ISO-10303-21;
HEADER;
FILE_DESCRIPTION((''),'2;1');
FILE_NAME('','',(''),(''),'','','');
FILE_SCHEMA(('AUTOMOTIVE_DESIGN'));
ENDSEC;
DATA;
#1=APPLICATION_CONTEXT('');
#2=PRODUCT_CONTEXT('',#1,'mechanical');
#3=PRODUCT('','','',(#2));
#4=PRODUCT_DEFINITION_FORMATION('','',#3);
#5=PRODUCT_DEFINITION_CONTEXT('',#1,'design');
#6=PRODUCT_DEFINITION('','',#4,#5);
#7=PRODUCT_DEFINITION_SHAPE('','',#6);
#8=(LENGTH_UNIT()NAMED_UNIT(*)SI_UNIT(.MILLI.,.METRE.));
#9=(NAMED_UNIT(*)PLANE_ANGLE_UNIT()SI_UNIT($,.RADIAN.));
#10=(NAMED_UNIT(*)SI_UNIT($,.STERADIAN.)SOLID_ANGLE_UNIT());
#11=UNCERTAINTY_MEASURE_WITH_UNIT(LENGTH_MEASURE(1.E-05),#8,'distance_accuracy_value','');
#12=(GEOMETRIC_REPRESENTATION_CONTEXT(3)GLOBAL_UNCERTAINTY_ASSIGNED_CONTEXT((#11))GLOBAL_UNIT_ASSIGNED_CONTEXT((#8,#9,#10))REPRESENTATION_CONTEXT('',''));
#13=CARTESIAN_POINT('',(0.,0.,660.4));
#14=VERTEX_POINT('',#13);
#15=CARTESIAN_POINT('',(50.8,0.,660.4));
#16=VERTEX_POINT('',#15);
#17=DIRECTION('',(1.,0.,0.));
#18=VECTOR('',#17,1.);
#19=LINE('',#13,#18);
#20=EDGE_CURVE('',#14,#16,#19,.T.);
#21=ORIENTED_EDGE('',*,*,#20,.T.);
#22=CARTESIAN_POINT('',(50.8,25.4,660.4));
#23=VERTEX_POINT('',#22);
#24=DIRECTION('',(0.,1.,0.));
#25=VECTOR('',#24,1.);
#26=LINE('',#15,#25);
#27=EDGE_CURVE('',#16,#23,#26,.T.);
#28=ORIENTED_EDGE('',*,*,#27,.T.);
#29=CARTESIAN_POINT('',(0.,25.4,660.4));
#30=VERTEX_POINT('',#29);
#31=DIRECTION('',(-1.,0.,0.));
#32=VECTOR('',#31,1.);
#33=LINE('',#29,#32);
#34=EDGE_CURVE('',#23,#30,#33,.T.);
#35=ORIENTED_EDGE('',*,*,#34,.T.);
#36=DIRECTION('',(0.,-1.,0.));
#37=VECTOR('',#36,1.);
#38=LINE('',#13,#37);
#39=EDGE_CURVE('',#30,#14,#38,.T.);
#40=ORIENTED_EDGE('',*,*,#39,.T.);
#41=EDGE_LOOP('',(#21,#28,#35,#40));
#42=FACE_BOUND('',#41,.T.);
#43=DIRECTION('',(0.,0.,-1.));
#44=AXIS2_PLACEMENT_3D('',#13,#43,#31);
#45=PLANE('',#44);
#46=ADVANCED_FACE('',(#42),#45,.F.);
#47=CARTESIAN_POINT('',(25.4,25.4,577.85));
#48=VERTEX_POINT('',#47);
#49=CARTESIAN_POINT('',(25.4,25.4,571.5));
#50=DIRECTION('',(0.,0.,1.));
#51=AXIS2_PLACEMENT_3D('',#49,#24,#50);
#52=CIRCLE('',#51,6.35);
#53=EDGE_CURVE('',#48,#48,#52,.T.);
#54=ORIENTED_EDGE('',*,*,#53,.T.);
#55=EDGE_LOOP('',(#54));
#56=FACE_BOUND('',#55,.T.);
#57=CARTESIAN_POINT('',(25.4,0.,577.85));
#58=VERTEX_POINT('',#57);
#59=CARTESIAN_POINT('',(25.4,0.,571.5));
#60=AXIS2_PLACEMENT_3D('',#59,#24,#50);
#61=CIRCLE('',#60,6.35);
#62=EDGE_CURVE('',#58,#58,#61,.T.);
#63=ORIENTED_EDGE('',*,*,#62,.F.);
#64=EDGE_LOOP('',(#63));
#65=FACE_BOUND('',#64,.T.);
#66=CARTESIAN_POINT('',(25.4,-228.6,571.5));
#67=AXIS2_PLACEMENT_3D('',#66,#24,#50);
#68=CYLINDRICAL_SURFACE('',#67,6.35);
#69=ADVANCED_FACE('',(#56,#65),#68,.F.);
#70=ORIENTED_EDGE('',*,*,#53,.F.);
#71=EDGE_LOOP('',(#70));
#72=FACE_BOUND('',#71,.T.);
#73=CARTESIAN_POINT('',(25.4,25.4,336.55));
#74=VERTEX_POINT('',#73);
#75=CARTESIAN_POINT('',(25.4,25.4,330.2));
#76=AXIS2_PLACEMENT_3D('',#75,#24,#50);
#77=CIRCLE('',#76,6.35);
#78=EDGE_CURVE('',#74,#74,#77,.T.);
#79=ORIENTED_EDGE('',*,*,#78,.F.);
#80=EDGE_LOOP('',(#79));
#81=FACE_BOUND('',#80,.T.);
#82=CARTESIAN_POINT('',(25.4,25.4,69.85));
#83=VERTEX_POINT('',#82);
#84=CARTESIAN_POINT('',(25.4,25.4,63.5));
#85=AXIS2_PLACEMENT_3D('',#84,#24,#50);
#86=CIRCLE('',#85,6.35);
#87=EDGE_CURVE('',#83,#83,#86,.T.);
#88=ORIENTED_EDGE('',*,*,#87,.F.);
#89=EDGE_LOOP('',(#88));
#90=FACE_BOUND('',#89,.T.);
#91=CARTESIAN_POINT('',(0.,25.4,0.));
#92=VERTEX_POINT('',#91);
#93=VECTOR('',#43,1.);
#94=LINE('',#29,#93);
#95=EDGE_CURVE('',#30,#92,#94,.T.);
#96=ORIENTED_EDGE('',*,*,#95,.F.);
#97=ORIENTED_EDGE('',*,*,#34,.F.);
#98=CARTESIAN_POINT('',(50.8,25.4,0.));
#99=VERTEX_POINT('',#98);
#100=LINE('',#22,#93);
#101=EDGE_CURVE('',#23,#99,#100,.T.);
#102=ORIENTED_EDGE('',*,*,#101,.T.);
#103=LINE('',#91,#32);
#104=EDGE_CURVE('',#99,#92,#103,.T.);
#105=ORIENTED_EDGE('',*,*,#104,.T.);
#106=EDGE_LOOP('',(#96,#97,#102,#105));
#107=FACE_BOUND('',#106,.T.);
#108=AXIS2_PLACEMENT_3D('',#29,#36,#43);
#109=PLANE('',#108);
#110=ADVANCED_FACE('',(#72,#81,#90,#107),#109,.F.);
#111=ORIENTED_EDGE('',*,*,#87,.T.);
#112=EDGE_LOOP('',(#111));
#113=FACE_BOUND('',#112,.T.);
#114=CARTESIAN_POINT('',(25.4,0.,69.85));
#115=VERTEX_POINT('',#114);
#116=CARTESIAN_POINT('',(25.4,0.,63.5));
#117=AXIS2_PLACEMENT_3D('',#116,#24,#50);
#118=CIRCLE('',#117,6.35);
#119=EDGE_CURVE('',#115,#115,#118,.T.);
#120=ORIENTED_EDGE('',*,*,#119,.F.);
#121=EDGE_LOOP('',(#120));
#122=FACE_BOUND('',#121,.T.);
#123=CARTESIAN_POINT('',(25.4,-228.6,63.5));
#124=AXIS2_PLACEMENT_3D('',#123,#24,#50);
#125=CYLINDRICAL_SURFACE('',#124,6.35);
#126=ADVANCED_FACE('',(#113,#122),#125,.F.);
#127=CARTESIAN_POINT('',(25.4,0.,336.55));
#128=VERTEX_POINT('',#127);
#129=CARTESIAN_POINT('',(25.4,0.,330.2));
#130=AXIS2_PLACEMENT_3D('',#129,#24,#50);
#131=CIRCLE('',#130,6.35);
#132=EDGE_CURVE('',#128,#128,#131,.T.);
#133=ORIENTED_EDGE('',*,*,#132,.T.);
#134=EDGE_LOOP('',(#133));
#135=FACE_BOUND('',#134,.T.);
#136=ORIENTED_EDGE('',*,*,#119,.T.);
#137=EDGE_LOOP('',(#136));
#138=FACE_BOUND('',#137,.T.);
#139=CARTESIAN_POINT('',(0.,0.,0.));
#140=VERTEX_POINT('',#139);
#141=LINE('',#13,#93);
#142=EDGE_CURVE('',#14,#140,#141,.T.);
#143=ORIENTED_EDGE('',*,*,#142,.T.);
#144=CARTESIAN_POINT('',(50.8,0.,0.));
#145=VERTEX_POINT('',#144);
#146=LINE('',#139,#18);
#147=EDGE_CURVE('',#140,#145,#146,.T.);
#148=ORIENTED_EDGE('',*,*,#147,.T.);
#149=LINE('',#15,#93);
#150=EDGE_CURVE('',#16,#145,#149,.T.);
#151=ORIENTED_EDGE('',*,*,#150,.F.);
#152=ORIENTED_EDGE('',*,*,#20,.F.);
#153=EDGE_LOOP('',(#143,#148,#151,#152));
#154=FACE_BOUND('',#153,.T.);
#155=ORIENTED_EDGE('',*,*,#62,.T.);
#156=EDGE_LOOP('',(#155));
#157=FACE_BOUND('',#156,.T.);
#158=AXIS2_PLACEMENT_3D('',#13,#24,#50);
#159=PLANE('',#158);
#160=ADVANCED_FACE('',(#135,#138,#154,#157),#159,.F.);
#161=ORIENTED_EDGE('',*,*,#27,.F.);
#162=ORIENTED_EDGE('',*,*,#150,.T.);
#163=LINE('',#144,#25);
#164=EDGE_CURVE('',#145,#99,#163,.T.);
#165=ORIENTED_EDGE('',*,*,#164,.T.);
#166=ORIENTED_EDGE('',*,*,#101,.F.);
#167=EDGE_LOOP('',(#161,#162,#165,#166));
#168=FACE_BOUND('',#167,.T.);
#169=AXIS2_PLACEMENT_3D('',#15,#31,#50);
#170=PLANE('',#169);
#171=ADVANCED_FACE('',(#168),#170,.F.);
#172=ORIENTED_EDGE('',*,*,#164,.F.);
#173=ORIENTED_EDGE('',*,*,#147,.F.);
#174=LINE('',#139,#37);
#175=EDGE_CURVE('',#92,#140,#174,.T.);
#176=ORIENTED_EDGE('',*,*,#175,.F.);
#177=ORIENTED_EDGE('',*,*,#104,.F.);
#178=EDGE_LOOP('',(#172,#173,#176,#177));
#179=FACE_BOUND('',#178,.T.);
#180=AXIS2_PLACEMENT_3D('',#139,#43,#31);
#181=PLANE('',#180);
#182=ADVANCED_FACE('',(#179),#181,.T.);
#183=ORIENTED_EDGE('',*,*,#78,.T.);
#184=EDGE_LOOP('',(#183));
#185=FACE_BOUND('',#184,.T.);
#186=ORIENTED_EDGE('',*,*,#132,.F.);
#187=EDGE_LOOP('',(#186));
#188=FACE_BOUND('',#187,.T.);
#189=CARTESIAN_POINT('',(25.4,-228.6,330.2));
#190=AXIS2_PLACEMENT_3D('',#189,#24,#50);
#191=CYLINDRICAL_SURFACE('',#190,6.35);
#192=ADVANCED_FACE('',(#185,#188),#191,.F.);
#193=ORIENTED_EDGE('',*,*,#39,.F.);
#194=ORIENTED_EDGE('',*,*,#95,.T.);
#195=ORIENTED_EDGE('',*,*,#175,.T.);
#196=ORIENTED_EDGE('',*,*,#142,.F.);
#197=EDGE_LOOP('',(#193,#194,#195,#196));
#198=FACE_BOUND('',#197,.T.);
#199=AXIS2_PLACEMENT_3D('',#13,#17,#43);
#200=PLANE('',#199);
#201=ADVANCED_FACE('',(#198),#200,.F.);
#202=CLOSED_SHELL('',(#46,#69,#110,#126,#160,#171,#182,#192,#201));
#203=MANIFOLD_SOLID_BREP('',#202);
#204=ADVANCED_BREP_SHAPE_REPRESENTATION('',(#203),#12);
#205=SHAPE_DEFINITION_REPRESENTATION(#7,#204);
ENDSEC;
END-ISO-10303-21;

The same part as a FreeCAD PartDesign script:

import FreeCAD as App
import Part
import Sketcher
from FreeCAD import Vector
Q = App.Units.Quantity

doc = App.newDocument("Part")
params = doc.addObject("Spreadsheet::Sheet", "Params")
for row, (alias, value) in enumerate([
    ("sketch1_width", "2 in"),
    ("sketch1_height", "1 in"),
    ("pad1_length", "26 in"),
    ("sketch2_diameter", "0.5 in"),
    ("pocket1_length", "10 in"),
], start=1):
    params.set(f"A{row}", alias)
    params.set(f"B{row}", "=" + value)
    params.setAlias(f"B{row}", alias)

body = doc.addObject("PartDesign::Body", "Body")

# Sketch on XY plane
sketch1 = body.newObject("Sketcher::SketchObject", "Sketch")
sketch1.AttachmentSupport = (doc.getObject("XY_Plane"), [""])
sketch1.MapMode = "FlatFace"
sketch1.addGeometry([
    Part.LineSegment(Vector(0, 25, 0), Vector(0, 0, 0)),
    Part.LineSegment(Vector(0, 0, 0), Vector(51, 0, 0)),
    Part.LineSegment(Vector(51, 0, 0), Vector(51, 25, 0)),
    Part.LineSegment(Vector(51, 25, 0), Vector(0, 25, 0)),
], False)
sketch1.addConstraint([
    Sketcher.Constraint("Coincident", 0, 2, 1, 1),
    Sketcher.Constraint("Coincident", 1, 2, 2, 1),
    Sketcher.Constraint("Coincident", 2, 2, 3, 1),
    Sketcher.Constraint("Coincident", 3, 2, 0, 1),
    Sketcher.Constraint("Vertical", 0),
    Sketcher.Constraint("Horizontal", 1),
    Sketcher.Constraint("Vertical", 2),
    Sketcher.Constraint("Horizontal", 3),
    Sketcher.Constraint("Coincident", 0, 2, -1, 1),
    Sketcher.Constraint("DistanceX", 1, 1, 1, 2, Q("2 in")),
    Sketcher.Constraint("DistanceY", 0, 2, 0, 1, Q("1 in")),
])
sketch1.setExpression("Constraints[9]", "Params.sketch1_width")
sketch1.setExpression("Constraints[10]", "Params.sketch1_height")
pad1 = body.newObject("PartDesign::Pad", "Pad")
pad1.Profile = sketch1
pad1.setExpression("Length", "Params.pad1_length")

# Sketch on XZ plane
sketch2 = body.newObject("Sketcher::SketchObject", "Sketch001")
sketch2.AttachmentSupport = (doc.getObject("XZ_Plane"), [""])
sketch2.MapMode = "FlatFace"
sketch2.AttachmentOffset = App.Placement(Vector(0, 0, -1 * 25.4), App.Rotation())
sketch2.addGeometry([
    Part.Circle(Vector(25, 64, 0), Vector(0, 0, 1), 6),
    Part.Circle(Vector(25, 572, 0), Vector(0, 0, 1), 6),
    Part.Circle(Vector(25, 330, 0), Vector(0, 0, 1), 6),
], False)
sketch2.addConstraint([
    Sketcher.Constraint("Equal", 0, 1),
    Sketcher.Constraint("Equal", 1, 2),
    Sketcher.Constraint("Vertical", 0, 3, 1, 3),
    Sketcher.Constraint("Vertical", 1, 3, 2, 3),
    Sketcher.Constraint("Diameter", 0, Q("0.5 in")),
    Sketcher.Constraint("DistanceX", -1, 1, 0, 3, Q("1 in")),
    Sketcher.Constraint("DistanceY", -1, 1, 2, 3, Q("13 in")),
    Sketcher.Constraint("DistanceY", 0, 3, 1, 3, Q("20 in")),
    Sketcher.Constraint("DistanceY", -1, 1, 0, 3, Q("2.5 in")),
])
sketch2.setExpression("Constraints[4]", "Params.sketch2_diameter")
pocket1 = body.newObject("PartDesign::Pocket", "Pocket")
pocket1.Profile = sketch2
pocket1.setExpression("Length", "Params.pocket1_length")
pocket1.Reversed = True

doc.recompute()
